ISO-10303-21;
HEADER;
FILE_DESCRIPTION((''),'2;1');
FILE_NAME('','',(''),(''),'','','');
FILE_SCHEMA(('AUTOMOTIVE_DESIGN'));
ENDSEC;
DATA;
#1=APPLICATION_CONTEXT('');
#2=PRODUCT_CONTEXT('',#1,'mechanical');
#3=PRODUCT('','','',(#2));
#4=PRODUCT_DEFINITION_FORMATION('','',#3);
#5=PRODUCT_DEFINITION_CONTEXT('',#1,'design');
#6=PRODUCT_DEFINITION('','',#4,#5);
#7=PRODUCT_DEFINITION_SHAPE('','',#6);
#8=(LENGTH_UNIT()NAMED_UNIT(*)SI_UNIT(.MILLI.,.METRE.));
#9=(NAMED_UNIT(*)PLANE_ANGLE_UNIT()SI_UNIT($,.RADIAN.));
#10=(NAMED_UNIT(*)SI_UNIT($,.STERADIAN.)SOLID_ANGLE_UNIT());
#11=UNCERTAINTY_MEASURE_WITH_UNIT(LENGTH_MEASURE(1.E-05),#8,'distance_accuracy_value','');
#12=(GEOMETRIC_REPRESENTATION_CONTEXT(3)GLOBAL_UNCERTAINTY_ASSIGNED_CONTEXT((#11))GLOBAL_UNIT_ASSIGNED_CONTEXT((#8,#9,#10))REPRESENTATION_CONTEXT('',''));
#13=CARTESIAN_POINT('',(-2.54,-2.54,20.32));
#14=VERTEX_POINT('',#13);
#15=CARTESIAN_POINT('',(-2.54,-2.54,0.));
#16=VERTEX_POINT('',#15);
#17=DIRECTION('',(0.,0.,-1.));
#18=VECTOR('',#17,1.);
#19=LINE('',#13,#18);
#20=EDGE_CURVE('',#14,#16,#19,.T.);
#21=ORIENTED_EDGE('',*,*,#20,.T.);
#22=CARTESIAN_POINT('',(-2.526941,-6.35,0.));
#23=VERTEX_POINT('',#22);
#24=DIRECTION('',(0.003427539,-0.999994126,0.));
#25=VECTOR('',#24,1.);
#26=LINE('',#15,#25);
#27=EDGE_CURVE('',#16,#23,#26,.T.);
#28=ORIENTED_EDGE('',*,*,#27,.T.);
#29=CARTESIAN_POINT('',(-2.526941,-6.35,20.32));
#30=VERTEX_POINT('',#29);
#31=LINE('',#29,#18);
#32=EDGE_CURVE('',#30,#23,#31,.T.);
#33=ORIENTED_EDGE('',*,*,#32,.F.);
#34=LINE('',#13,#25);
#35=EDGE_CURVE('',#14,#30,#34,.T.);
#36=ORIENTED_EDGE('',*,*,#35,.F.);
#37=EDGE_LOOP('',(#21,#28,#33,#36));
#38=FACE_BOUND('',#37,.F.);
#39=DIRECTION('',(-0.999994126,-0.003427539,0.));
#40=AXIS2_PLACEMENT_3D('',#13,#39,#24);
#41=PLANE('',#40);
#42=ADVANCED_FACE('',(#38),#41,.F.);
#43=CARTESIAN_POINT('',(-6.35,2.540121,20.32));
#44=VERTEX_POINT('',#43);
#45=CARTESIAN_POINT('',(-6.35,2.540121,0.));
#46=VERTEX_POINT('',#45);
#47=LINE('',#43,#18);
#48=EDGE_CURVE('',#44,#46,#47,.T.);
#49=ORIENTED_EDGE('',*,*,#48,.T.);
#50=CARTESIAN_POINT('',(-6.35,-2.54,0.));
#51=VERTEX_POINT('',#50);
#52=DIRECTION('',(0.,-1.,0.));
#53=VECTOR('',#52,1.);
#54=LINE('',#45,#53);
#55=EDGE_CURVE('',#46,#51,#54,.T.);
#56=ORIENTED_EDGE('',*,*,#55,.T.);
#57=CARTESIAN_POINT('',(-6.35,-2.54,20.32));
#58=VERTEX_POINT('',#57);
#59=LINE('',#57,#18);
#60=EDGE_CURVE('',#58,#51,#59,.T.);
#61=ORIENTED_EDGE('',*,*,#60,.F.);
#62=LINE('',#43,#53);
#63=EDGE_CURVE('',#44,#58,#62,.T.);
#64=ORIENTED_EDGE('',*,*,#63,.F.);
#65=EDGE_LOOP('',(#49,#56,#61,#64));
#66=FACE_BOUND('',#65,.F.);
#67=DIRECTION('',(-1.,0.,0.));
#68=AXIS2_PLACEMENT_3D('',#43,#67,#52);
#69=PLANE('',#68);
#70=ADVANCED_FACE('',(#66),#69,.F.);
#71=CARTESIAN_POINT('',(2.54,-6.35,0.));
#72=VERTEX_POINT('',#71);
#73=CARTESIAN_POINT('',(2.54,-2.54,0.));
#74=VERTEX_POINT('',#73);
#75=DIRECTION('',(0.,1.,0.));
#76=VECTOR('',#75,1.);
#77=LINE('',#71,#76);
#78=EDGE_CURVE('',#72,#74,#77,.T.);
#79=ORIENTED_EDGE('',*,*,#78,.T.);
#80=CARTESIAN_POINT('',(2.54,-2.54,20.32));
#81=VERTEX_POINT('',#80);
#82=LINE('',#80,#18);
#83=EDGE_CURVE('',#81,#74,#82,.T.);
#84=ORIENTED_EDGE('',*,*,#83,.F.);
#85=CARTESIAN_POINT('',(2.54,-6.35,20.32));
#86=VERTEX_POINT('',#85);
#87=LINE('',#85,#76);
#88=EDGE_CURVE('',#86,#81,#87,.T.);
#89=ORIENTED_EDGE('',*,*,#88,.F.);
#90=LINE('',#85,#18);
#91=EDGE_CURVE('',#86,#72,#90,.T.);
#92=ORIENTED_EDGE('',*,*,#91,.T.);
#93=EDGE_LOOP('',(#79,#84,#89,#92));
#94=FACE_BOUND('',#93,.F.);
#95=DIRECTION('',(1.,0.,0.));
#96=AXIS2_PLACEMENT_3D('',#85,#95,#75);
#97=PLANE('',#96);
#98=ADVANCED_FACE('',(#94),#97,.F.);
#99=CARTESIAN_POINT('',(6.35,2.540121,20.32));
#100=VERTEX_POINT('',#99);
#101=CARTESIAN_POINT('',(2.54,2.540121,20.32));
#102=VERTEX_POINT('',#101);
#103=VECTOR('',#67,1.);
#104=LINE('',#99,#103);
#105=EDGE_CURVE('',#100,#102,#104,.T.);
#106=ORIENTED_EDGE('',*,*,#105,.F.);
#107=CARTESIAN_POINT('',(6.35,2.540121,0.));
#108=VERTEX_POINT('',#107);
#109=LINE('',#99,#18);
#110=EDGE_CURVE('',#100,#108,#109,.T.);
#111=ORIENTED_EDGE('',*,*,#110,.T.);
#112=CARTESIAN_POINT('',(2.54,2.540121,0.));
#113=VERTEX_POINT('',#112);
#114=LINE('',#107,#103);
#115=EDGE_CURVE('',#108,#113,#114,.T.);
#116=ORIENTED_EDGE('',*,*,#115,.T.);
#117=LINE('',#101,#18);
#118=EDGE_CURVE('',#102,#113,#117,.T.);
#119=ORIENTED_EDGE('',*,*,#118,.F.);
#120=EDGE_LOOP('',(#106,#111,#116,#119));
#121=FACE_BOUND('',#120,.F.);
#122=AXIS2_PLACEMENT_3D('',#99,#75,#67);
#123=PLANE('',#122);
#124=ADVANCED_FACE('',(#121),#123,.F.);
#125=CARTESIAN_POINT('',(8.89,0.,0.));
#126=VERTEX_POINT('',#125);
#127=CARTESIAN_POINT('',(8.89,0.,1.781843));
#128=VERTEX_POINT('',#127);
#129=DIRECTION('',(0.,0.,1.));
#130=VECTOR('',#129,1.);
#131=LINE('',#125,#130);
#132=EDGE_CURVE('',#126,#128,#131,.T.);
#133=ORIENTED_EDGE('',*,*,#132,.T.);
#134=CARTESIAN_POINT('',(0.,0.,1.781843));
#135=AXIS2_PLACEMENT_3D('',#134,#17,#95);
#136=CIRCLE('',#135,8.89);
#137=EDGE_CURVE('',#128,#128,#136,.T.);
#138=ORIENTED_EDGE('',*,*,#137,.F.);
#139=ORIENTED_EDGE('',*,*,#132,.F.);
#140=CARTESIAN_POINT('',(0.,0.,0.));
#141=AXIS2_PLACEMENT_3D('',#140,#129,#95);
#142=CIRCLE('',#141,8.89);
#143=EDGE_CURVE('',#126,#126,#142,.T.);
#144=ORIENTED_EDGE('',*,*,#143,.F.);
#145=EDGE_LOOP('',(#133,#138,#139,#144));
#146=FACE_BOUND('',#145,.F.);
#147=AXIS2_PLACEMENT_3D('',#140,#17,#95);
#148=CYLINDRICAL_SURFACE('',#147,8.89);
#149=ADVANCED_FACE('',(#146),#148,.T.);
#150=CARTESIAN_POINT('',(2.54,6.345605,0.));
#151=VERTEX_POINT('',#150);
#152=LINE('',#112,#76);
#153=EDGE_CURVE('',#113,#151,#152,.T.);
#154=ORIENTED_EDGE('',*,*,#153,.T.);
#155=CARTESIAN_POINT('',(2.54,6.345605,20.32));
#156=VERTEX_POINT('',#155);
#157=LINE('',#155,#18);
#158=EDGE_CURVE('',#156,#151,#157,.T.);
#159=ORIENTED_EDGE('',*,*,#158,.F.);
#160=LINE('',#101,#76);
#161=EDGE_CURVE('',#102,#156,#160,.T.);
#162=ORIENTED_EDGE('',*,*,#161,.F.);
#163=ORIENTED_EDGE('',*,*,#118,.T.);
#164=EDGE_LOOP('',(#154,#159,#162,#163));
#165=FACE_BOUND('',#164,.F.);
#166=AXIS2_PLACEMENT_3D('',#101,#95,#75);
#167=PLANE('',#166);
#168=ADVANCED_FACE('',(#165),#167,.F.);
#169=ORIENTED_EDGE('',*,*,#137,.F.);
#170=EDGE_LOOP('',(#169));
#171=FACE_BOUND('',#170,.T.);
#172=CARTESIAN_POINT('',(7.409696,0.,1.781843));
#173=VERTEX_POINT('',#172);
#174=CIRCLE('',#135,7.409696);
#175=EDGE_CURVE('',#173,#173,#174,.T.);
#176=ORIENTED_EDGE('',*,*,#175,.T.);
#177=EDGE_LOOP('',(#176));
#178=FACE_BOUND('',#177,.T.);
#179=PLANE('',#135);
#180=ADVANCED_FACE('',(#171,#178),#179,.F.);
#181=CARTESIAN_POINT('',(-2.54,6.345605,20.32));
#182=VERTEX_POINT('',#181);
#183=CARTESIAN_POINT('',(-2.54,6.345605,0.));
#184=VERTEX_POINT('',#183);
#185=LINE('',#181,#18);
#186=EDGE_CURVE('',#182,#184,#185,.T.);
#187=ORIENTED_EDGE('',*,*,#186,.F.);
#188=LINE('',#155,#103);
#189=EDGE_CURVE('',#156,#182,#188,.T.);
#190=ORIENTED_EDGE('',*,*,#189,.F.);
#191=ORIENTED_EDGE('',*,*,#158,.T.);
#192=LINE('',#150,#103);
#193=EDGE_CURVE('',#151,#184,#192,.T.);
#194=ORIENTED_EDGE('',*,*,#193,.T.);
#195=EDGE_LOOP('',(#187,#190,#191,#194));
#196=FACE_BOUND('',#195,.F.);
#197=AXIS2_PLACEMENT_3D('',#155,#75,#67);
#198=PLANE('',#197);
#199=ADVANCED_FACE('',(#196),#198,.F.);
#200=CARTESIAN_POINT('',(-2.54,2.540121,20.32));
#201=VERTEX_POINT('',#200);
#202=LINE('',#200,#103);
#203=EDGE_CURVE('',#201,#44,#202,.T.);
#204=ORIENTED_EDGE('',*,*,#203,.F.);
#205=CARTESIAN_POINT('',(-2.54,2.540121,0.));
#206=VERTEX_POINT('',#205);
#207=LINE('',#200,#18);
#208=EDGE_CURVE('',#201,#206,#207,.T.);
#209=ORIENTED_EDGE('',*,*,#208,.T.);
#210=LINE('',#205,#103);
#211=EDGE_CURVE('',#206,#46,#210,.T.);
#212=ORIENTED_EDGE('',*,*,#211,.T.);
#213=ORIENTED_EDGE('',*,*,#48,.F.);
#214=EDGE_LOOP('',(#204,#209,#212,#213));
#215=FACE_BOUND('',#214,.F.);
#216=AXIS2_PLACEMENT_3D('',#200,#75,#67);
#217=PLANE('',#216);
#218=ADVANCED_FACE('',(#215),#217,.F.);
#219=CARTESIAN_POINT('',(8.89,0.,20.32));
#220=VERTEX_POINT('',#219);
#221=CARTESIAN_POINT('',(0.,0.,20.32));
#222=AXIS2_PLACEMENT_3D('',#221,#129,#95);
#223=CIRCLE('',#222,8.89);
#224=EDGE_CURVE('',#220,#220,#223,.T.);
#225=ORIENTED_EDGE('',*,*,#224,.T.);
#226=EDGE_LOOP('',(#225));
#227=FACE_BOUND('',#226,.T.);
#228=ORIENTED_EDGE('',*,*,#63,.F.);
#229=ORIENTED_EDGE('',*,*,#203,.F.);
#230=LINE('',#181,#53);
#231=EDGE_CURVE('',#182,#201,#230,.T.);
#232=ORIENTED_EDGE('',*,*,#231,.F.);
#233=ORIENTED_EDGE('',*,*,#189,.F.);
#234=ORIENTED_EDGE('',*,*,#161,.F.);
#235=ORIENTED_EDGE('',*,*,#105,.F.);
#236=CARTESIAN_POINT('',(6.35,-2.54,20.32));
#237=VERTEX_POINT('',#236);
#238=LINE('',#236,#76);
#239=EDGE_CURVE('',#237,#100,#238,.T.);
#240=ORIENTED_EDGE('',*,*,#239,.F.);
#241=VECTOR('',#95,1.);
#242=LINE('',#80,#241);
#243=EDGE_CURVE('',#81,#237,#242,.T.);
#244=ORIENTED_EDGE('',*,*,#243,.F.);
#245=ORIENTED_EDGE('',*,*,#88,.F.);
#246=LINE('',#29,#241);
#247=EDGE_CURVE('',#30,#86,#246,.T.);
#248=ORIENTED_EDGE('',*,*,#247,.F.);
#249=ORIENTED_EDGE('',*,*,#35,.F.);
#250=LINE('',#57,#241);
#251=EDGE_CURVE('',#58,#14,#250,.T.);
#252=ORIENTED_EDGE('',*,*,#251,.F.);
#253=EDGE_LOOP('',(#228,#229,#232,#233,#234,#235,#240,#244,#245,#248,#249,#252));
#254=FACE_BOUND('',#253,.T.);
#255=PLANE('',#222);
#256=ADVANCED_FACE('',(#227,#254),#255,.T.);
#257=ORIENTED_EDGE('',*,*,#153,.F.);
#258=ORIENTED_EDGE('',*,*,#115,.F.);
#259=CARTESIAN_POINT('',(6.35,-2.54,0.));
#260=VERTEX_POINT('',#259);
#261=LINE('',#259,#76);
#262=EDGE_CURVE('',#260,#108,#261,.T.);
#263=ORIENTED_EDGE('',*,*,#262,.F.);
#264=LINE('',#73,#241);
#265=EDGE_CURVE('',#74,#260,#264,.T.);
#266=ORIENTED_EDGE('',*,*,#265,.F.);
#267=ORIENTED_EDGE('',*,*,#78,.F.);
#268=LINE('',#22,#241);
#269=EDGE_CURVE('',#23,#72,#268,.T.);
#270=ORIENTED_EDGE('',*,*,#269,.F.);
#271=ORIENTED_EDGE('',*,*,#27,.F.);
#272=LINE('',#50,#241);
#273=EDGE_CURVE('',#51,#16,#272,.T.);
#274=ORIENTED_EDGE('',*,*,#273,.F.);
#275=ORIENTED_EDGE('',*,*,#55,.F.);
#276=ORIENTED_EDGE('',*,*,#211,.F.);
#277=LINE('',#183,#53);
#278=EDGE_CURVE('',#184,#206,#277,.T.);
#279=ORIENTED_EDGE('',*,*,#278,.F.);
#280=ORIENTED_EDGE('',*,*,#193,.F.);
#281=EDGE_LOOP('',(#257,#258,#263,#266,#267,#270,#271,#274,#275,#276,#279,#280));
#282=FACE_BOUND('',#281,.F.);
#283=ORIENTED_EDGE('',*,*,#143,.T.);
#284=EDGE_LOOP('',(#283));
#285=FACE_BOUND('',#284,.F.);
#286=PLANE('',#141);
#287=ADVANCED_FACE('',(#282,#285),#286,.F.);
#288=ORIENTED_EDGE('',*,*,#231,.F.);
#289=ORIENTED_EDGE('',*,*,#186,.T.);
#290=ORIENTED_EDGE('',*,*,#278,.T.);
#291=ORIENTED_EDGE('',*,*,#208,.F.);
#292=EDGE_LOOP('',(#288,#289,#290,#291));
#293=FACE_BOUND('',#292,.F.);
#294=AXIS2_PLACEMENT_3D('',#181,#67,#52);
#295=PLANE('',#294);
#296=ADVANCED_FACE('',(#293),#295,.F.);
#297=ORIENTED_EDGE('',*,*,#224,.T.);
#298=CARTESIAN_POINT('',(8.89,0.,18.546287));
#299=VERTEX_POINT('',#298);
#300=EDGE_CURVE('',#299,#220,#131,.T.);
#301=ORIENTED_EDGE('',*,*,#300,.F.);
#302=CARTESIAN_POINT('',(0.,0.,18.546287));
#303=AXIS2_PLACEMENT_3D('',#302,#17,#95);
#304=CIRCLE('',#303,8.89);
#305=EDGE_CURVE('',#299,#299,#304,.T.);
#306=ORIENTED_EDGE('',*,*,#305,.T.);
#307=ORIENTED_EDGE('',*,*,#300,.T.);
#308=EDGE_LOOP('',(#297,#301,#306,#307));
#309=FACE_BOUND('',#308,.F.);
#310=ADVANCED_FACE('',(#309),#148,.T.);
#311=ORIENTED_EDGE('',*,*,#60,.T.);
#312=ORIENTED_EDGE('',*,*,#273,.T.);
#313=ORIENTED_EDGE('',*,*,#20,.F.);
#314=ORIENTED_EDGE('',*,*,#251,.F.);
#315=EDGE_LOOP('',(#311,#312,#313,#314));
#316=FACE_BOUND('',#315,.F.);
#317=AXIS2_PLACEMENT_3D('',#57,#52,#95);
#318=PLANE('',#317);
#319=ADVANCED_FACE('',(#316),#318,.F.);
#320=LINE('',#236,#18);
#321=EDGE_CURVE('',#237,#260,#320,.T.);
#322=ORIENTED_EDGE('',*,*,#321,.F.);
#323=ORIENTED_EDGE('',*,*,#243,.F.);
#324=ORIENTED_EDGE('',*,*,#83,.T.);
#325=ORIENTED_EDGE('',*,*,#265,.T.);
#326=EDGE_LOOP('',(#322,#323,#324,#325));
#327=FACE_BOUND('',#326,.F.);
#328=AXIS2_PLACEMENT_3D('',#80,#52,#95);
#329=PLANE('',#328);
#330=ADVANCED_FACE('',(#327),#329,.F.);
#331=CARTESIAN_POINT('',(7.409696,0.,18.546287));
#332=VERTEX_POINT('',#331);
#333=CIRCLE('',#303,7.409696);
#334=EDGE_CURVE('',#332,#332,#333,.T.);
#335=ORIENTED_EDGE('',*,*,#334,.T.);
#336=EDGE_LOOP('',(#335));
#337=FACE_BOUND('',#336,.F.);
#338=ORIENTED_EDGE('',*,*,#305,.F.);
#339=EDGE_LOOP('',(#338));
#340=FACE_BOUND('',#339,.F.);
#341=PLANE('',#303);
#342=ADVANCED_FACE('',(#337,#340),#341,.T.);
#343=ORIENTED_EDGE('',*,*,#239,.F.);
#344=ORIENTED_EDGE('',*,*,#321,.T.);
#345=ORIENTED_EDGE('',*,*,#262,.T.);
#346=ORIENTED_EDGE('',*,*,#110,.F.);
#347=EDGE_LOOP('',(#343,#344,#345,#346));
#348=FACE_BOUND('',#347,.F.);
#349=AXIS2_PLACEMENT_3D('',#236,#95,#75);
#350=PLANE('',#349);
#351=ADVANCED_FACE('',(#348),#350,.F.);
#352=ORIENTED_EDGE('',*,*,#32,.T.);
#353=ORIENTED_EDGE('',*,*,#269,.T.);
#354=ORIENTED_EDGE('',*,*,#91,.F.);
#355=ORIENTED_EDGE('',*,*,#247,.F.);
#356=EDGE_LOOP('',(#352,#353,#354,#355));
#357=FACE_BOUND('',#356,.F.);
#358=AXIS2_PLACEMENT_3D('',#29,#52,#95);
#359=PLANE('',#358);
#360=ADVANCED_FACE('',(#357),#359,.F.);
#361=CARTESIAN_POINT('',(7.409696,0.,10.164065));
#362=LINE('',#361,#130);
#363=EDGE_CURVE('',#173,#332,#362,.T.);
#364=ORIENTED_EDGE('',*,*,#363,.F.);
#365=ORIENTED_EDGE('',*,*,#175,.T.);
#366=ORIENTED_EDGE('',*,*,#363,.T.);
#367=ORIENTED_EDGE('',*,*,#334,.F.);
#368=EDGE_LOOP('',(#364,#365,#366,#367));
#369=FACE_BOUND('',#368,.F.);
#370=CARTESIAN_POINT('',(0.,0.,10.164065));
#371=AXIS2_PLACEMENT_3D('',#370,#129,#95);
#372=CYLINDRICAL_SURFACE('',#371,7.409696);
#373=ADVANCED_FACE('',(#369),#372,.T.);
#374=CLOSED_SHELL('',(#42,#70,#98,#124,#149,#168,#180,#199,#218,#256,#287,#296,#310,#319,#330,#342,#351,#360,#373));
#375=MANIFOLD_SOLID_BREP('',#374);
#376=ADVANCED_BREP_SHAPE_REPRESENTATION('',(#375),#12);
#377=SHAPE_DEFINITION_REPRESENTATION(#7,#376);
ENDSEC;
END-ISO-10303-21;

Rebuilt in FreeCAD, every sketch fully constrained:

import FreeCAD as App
import Part
import Sketcher

V = App.Vector
Q = App.Units.Quantity

doc = App.newDocument("Part")
body = doc.addObject("PartDesign::Body", "Body")

sketch1 = body.newObject("Sketcher::SketchObject", "Sketch")
sketch1.AttachmentSupport = (doc.getObject("XY_Plane"), [""])
sketch1.MapMode = "FlatFace"
sketch1.addGeometry(Part.Circle(V(0, 0, 0), V(0, 0, 1), 9), False)
sketch1.addConstraint(Sketcher.Constraint("Coincident", 0, 3, -1, 1))
sketch1.addConstraint(Sketcher.Constraint("Diameter", 0, Q("0.7 in")))
pad1 = body.newObject("PartDesign::Pad", "Pad")
pad1.Profile = sketch1
pad1.Length = Q("0.8 in")

sketch2 = body.newObject("Sketcher::SketchObject", "Sketch001")
sketch2.AttachmentSupport = (doc.getObject("XY_Plane"), [""])
sketch2.MapMode = "FlatFace"
sketch2.AttachmentOffset = App.Placement(V(0, 0, 0.8 * 25.4), App.Rotation())
sketch2.addGeometry(Part.LineSegment(V(-2.5, -6.3, 0), V(2.5, -6.3, 0)), False)
sketch2.addGeometry(Part.LineSegment(V(2.5, -6.3, 0), V(2.5, -2.5, 0)), False)
sketch2.addGeometry(Part.LineSegment(V(2.5, -2.5, 0), V(6.3, -2.5, 0)), False)
sketch2.addGeometry(Part.LineSegment(V(6.3, -2.5, 0), V(6.3, 2.5, 0)), False)
sketch2.addGeometry(Part.LineSegment(V(6.3, 2.5, 0), V(2.5, 2.5, 0)), False)
sketch2.addGeometry(Part.LineSegment(V(2.5, 2.5, 0), V(2.5, 6.3, 0)), False)
sketch2.addGeometry(Part.LineSegment(V(2.5, 6.3, 0), V(-2.5, 6.3, 0)), False)
sketch2.addGeometry(Part.LineSegment(V(-2.5, 6.3, 0), V(-2.5, 2.5, 0)), False)
sketch2.addGeometry(Part.LineSegment(V(-2.5, 2.5, 0), V(-6.3, 2.5, 0)), False)
sketch2.addGeometry(Part.LineSegment(V(-6.3, 2.5, 0), V(-6.3, -2.5, 0)), False)
sketch2.addGeometry(Part.LineSegment(V(-6.3, -2.5, 0), V(-2.5, -2.5, 0)), False)
sketch2.addGeometry(Part.LineSegment(V(-2.5, -2.5, 0), V(-2.5, -6.3, 0)), False)
sketch2.addConstraint(Sketcher.Constraint("Coincident", 0, 2, 1, 1))
sketch2.addConstraint(Sketcher.Constraint("Coincident", 1, 2, 2, 1))
sketch2.addConstraint(Sketcher.Constraint("Coincident", 2, 2, 3, 1))
sketch2.addConstraint(Sketcher.Constraint("Coincident", 3, 2, 4, 1))
sketch2.addConstraint(Sketcher.Constraint("Coincident", 4, 2, 5, 1))
sketch2.addConstraint(Sketcher.Constraint("Coincident", 5, 2, 6, 1))
sketch2.addConstraint(Sketcher.Constraint("Coincident", 6, 2, 7, 1))
sketch2.addConstraint(Sketcher.Constraint("Coincident", 7, 2, 8, 1))
sketch2.addConstraint(Sketcher.Constraint("Coincident", 8, 2, 9, 1))
sketch2.addConstraint(Sketcher.Constraint("Coincident", 9, 2, 10, 1))
sketch2.addConstraint(Sketcher.Constraint("Coincident", 10, 2, 11, 1))
sketch2.addConstraint(Sketcher.Constraint("Coincident", 11, 2, 0, 1))
sketch2.addConstraint(Sketcher.Constraint("Horizontal", 0))
sketch2.addConstraint(Sketcher.Constraint("Vertical", 1))
sketch2.addConstraint(Sketcher.Constraint("Horizontal", 2))
sketch2.addConstraint(Sketcher.Constraint("Vertical", 3))
sketch2.addConstraint(Sketcher.Constraint("Horizontal", 4))
sketch2.addConstraint(Sketcher.Constraint("Vertical", 5))
sketch2.addConstraint(Sketcher.Constraint("Horizontal", 6))
sketch2.addConstraint(Sketcher.Constraint("Vertical", 7))
sketch2.addConstraint(Sketcher.Constraint("Horizontal", 8))
sketch2.addConstraint(Sketcher.Constraint("Vertical", 9))
sketch2.addConstraint(Sketcher.Constraint("Horizontal", 10))
sketch2.addConstraint(Sketcher.Constraint("Symmetric", 4, 2, 7, 2, -2))
sketch2.addConstraint(Sketcher.Constraint("Symmetric", 2, 2, 9, 2, -2))
sketch2.addConstraint(Sketcher.Constraint("Vertical", 1, 2, 4, 2))
sketch2.addConstraint(Sketcher.Constraint("Vertical", 7, 2, 10, 2))
sketch2.addConstraint(Sketcher.Constraint("Equal", 10, 1))
sketch2.addConstraint(Sketcher.Constraint("DistanceX", 6, 2, 6, 1, Q("0.2 in")))
sketch2.addConstraint(Sketcher.Constraint("DistanceX", 2, 1, 2, 2, Q("0.15 in")))
sketch2.addConstraint(Sketcher.Constraint("DistanceY", 1, 2, -1, 1, Q("0.1 in")))
sketch2.addConstraint(Sketcher.Constraint("DistanceX", 0, 1, 0, 2, Q("5.066941 mm")))
sketch2.addConstraint(Sketcher.Constraint("DistanceY", 3, 1, 3, 2, Q("5.080121 mm")))
sketch2.addConstraint(Sketcher.Constraint("DistanceY", 5, 1, 5, 2, Q("3.805484 mm")))
pocket1 = body.newObject("PartDesign::Pocket", "Pocket")
pocket1.Profile = sketch2
pocket1.Length = Q("0.8 in")

sketch3 = body.newObject("Sketcher::SketchObject", "Sketch002")
sketch3.AttachmentSupport = (doc.getObject("XZ_Plane"), [""])
sketch3.MapMode = "FlatFace"
sketch3.addGeometry(Part.LineSegment(V(7.4, 18.5, 0), V(7.4, 1.8, 0)), False)
sketch3.addGeometry(Part.LineSegment(V(7.4, 1.8, 0), V(11.1, 1.8, 0)), False)
sketch3.addGeometry(Part.LineSegment(V(11.1, 1.8, 0), V(11.1, 18.5, 0)), False)
sketch3.addGeometry(Part.LineSegment(V(11.1, 18.5, 0), V(7.4, 18.5, 0)), False)
sketch3.addConstraint(Sketcher.Constraint("Coincident", 0, 2, 1, 1))
sketch3.addConstraint(Sketcher.Constraint("Coincident", 1, 2, 2, 1))
sketch3.addConstraint(Sketcher.Constraint("Coincident", 2, 2, 3, 1))
sketch3.addConstraint(Sketcher.Constraint("Coincident", 3, 2, 0, 1))
sketch3.addConstraint(Sketcher.Constraint("Vertical", 0))
sketch3.addConstraint(Sketcher.Constraint("Horizontal", 1))
sketch3.addConstraint(Sketcher.Constraint("Vertical", 2))
sketch3.addConstraint(Sketcher.Constraint("Horizontal", 3))
sketch3.addConstraint(Sketcher.Constraint("DistanceX", 1, 1, 1, 2, Q("3.678773 mm")))
sketch3.addConstraint(Sketcher.Constraint("DistanceY", 0, 2, 0, 1, Q("16.764444 mm")))
sketch3.addConstraint(Sketcher.Constraint("DistanceX", -1, 1, 1, 2, Q("11.08847 mm")))
sketch3.addConstraint(Sketcher.Constraint("DistanceY", -1, 1, 0, 2, Q("1.781843 mm")))
groove = body.newObject("PartDesign::Groove", "Groove")
groove.Profile = sketch3
groove.ReferenceAxis = (sketch3, ["V_Axis"])
groove.Angle = 360

doc.recompute()
